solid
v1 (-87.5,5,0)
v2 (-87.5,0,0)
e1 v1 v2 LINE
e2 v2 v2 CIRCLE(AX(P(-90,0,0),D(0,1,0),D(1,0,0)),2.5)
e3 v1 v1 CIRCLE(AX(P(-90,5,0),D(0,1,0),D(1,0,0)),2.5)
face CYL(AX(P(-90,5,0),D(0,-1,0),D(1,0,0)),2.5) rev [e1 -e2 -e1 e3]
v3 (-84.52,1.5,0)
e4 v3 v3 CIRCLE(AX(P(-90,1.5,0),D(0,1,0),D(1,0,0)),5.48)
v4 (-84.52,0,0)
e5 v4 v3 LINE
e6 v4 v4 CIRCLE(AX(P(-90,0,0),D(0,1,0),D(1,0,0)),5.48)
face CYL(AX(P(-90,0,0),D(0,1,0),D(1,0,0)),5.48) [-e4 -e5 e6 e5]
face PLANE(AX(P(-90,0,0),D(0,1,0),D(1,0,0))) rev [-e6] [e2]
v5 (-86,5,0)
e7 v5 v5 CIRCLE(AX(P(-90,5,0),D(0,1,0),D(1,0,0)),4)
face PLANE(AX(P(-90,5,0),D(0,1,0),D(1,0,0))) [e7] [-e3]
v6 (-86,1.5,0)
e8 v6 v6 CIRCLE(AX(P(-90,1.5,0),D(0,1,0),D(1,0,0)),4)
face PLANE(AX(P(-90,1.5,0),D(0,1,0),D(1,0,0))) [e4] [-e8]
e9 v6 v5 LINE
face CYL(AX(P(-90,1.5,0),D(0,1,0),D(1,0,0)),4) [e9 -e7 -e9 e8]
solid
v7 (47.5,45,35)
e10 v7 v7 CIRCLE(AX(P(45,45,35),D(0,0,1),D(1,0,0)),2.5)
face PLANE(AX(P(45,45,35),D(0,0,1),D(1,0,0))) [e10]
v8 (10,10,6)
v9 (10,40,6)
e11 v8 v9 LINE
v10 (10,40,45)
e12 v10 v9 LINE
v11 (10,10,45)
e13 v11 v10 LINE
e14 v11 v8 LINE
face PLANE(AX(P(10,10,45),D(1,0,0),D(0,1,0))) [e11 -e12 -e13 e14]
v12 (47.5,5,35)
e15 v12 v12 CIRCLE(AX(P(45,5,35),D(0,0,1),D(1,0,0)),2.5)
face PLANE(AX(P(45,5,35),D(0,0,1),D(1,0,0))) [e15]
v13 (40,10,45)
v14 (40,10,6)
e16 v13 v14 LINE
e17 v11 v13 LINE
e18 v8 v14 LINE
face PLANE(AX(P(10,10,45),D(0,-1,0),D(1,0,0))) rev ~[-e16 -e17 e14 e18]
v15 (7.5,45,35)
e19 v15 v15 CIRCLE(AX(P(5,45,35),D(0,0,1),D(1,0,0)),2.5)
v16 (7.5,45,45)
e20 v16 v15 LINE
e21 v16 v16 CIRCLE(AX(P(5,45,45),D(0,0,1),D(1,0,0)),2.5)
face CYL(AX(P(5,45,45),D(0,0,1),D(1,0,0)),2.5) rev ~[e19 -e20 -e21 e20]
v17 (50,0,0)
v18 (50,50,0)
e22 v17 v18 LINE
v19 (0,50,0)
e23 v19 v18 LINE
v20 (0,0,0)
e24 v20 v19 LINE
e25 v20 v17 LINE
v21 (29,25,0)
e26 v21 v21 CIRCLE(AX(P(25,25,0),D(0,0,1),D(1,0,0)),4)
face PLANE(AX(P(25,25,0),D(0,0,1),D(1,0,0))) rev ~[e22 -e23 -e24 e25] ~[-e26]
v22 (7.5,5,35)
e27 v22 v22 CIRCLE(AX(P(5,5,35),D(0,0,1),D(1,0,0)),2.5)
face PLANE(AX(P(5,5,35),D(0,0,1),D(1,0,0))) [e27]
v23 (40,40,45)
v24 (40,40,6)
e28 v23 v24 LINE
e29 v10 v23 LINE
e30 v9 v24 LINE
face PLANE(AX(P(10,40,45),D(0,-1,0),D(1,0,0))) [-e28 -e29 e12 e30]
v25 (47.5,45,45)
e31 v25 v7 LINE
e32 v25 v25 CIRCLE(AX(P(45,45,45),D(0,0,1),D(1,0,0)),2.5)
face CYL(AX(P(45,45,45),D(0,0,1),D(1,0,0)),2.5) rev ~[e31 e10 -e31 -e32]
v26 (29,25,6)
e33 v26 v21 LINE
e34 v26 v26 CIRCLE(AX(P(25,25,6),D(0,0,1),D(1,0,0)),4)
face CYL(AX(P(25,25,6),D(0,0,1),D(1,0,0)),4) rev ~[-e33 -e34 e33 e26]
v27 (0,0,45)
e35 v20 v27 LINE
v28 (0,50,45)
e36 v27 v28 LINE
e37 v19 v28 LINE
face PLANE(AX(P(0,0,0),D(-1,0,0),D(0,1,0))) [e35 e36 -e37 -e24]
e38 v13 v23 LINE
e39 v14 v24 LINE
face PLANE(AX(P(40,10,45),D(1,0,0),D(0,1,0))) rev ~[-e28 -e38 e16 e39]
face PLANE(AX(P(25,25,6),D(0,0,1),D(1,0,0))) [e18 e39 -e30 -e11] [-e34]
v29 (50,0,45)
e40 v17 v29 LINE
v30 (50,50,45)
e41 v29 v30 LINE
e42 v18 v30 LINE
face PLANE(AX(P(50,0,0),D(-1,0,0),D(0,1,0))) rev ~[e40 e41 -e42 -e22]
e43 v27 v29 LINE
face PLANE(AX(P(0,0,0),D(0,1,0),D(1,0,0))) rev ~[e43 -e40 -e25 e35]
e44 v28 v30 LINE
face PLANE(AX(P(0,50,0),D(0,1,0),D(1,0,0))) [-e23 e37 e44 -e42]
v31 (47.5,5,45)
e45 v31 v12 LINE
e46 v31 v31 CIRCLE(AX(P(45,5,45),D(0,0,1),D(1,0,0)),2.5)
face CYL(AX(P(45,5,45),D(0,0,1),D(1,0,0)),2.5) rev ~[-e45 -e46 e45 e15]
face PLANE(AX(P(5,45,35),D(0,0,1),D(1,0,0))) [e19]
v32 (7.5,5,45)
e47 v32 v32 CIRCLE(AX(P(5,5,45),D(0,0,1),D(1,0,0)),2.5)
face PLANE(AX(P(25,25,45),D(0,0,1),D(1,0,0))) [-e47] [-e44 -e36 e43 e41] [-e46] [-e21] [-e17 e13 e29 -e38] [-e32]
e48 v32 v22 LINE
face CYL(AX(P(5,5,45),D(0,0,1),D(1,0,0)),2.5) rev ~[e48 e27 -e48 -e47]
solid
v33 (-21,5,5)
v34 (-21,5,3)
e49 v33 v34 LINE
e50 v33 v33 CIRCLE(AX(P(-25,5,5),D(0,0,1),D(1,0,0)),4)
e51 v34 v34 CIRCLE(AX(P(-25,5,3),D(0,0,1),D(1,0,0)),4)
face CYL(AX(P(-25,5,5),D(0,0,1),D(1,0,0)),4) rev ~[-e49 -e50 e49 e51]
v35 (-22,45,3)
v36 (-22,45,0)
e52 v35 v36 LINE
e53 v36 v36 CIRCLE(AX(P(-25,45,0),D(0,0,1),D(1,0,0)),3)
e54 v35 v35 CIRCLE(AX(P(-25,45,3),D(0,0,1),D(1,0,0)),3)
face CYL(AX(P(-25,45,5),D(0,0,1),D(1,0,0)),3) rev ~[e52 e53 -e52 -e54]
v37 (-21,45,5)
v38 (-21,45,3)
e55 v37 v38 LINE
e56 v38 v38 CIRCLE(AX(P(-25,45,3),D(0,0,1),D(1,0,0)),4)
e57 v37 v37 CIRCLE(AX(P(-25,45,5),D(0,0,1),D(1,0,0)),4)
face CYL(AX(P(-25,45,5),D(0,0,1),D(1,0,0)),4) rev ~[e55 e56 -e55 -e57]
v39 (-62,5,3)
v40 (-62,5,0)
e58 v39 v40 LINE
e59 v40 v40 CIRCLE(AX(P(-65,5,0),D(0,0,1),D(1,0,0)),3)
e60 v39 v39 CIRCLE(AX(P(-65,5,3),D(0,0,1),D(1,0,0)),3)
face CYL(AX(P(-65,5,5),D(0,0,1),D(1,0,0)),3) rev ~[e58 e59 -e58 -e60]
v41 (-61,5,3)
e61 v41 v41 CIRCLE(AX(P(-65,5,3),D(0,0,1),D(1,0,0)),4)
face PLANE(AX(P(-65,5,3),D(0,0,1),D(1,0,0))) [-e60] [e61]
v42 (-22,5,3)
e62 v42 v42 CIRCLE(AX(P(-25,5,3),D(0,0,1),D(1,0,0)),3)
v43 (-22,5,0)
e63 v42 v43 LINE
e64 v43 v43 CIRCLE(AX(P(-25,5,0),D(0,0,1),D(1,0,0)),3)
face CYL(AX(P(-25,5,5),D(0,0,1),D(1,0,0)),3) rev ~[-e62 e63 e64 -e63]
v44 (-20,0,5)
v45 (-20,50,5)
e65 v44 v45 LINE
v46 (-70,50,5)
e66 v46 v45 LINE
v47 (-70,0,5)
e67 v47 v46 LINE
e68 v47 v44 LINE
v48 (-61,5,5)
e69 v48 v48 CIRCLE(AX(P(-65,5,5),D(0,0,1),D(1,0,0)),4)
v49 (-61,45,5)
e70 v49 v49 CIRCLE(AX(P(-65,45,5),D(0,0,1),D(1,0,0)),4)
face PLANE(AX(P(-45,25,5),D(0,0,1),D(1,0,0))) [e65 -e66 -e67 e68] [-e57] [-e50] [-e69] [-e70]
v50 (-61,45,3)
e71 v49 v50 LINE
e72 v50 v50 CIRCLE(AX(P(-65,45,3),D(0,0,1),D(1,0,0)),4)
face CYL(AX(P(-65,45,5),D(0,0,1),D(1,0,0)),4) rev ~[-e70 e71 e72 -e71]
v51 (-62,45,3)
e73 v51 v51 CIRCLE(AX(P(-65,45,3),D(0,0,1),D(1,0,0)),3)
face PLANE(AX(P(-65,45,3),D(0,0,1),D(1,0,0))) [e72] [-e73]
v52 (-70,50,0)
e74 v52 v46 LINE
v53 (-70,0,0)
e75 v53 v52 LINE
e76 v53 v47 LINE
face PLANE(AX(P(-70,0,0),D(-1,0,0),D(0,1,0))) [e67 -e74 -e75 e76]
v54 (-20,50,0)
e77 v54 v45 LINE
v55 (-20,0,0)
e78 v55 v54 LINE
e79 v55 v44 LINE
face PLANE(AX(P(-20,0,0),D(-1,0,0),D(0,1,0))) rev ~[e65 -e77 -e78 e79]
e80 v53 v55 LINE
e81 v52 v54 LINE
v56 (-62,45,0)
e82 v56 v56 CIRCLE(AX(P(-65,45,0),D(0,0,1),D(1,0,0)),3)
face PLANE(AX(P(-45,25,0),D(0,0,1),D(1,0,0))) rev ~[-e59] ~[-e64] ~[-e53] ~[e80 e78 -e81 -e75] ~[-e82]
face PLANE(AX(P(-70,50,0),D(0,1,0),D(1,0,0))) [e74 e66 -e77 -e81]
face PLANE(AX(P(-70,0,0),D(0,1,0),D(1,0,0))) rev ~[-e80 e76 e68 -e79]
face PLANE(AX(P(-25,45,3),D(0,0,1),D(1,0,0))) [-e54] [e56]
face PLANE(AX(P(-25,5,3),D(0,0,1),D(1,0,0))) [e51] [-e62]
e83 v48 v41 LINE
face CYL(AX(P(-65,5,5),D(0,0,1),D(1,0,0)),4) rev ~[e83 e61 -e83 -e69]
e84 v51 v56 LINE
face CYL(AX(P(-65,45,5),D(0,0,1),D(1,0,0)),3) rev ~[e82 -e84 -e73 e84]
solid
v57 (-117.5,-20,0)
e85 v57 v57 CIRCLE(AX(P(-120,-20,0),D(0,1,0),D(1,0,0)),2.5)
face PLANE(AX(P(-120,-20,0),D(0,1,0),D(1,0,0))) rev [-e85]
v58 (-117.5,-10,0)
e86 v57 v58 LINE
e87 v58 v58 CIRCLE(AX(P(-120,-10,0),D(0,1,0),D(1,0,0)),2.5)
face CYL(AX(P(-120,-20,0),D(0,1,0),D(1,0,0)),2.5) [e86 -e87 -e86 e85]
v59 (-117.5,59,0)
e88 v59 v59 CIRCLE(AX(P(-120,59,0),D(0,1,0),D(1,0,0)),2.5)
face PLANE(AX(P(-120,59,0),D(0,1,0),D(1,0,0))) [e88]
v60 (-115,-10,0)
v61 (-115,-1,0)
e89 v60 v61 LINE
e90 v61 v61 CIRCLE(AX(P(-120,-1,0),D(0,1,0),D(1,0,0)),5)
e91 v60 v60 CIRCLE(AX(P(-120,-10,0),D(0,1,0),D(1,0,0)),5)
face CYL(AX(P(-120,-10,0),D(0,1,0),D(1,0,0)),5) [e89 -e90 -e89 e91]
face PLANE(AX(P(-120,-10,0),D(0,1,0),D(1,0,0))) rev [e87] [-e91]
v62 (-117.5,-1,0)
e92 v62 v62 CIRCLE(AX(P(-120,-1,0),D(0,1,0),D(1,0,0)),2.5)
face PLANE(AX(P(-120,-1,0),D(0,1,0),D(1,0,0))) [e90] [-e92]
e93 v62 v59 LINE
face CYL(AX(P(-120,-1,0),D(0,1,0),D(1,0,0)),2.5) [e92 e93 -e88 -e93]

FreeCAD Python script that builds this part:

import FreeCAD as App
import Part
import Sketcher

V = App.Vector

doc = App.newDocument("Part")
body = doc.addObject("PartDesign::Body", "Body")

sketch1 = body.newObject("Sketcher::SketchObject", "Sketch")
sketch1.AttachmentSupport = (doc.getObject("XY_Plane"), [""])
sketch1.MapMode = "FlatFace"
sketch1.addGeometry([
    Part.LineSegment(V(0, 50, 0), V(0, 0, 0)),
    Part.LineSegment(V(0, 0, 0), V(50, 0, 0)),
    Part.LineSegment(V(50, 0, 0), V(50, 50, 0)),
    Part.LineSegment(V(50, 50, 0), V(0, 50, 0)),
], False)
sketch1.addConstraint([
    Sketcher.Constraint("Coincident", 0, 2, 1, 1),
    Sketcher.Constraint("Coincident", 1, 2, 2, 1),
    Sketcher.Constraint("Coincident", 2, 2, 3, 1),
    Sketcher.Constraint("Coincident", 3, 2, 0, 1),
    Sketcher.Constraint("Vertical", 0),
    Sketcher.Constraint("Horizontal", 1),
    Sketcher.Constraint("Vertical", 2),
    Sketcher.Constraint("Horizontal", 3),
    Sketcher.Constraint("Coincident", 0, 2, -1, 1),
    Sketcher.Constraint("Equal", 3, 0),
    Sketcher.Constraint("DistanceX", 1, 1, 1, 2, 50.0),
])
pad1 = body.newObject("PartDesign::Pad", "Pad")
pad1.Profile = sketch1
pad1.Length = 45

sketch2 = body.newObject("Sketcher::SketchObject", "Sketch001")
sketch2.AttachmentSupport = (doc.getObject("XY_Plane"), [""])
sketch2.MapMode = "FlatFace"
sketch2.AttachmentOffset = App.Placement(V(0, 0, 45), App.Rotation())
sketch2.addGeometry([
    Part.LineSegment(V(10, 40, 0), V(10, 10, 0)),
    Part.LineSegment(V(10, 10, 0), V(40, 10, 0)),
    Part.LineSegment(V(40, 10, 0), V(40, 40, 0)),
    Part.LineSegment(V(40, 40, 0), V(10, 40, 0)),
], False)
sketch2.addConstraint([
    Sketcher.Constraint("Coincident", 0, 2, 1, 1),
    Sketcher.Constraint("Coincident", 1, 2, 2, 1),
    Sketcher.Constraint("Coincident", 2, 2, 3, 1),
    Sketcher.Constraint("Coincident", 3, 2, 0, 1),
    Sketcher.Constraint("Vertical", 0),
    Sketcher.Constraint("Horizontal", 1),
    Sketcher.Constraint("Vertical", 2),
    Sketcher.Constraint("Horizontal", 3),
    Sketcher.Constraint("Equal", 3, 0),
    Sketcher.Constraint("DistanceX", 1, 1, 1, 2, 30.0),
    Sketcher.Constraint("DistanceX", -1, 1, 0, 2, 10.0),
    Sketcher.Constraint("DistanceY", -1, 1, 0, 2, 10.0),
])
pocket1 = body.newObject("PartDesign::Pocket", "Pocket")
pocket1.Profile = sketch2
pocket1.Length = 39

sketch3 = body.newObject("Sketcher::SketchObject", "Sketch002")
sketch3.AttachmentSupport = (doc.getObject("XY_Plane"), [""])
sketch3.MapMode = "FlatFace"
sketch3.AttachmentOffset = App.Placement(V(0, 0, 45), App.Rotation())
sketch3.addGeometry([
    Part.Circle(V(5, 45, 0), V(0, 0, 1), 2.5),
    Part.Circle(V(5, 5, 0), V(0, 0, 1), 2.5),
    Part.Circle(V(45, 45, 0), V(0, 0, 1), 2.5),
    Part.Circle(V(45, 5, 0), V(0, 0, 1), 2.5),
], False)
sketch3.addConstraint([
    Sketcher.Constraint("Equal", 0, 1),
    Sketcher.Constraint("Equal", 1, 2),
    Sketcher.Constraint("Equal", 2, 3),
    Sketcher.Constraint("Horizontal", 0, 3, 2, 3),
    Sketcher.Constraint("Horizontal", 1, 3, 3, 3),
    Sketcher.Constraint("Vertical", 0, 3, 1, 3),
    Sketcher.Constraint("Vertical", 2, 3, 3, 3),
    Sketcher.Constraint("Diameter", 0, 5.0),
    Sketcher.Constraint("DistanceX", -1, 1, 0, 3, 5.0),
    Sketcher.Constraint("DistanceY", -1, 1, 0, 3, 45.0),
    Sketcher.Constraint("DistanceY", -1, 1, 1, 3, 5.0),
    Sketcher.Constraint("DistanceX", -1, 1, 2, 3, 45.0),
])
pocket2 = body.newObject("PartDesign::Pocket", "Pocket001")
pocket2.Profile = sketch3
pocket2.Length = 10

sketch4 = body.newObject("Sketcher::SketchObject", "Sketch003")
sketch4.AttachmentSupport = (doc.getObject("XY_Plane"), [""])
sketch4.MapMode = "FlatFace"
sketch4.AttachmentOffset = App.Placement(V(0, 0, 6), App.Rotation())
sketch4.addGeometry(Part.Circle(V(25, 25, 0), V(0, 0, 1), 4), False)
sketch4.addConstraint([
    Sketcher.Constraint("Diameter", 0, 8.0),
    Sketcher.Constraint("DistanceX", -1, 1, 0, 3, 25.0),
    Sketcher.Constraint("DistanceY", -1, 1, 0, 3, 25.0),
])
pocket3 = body.newObject("PartDesign::Pocket", "Pocket002")
pocket3.Profile = sketch4
pocket3.Length = 25
body2 = doc.addObject("PartDesign::Body", "Body001")

sketch5 = body2.newObject("Sketcher::SketchObject", "Sketch004")
sketch5.AttachmentSupport = (doc.getObject("XY_Plane001"), [""])
sketch5.MapMode = "FlatFace"
sketch5.addGeometry([
    Part.LineSegment(V(-70, 50, 0), V(-70, 0, 0)),
    Part.LineSegment(V(-70, 0, 0), V(-20, 0, 0)),
    Part.LineSegment(V(-20, 0, 0), V(-20, 50, 0)),
    Part.LineSegment(V(-20, 50, 0), V(-70, 50, 0)),
], False)
sketch5.addConstraint([
    Sketcher.Constraint("Coincident", 0, 2, 1, 1),
    Sketcher.Constraint("Coincident", 1, 2, 2, 1),
    Sketcher.Constraint("Coincident", 2, 2, 3, 1),
    Sketcher.Constraint("Coincident", 3, 2, 0, 1),
    Sketcher.Constraint("Vertical", 0),
    Sketcher.Constraint("Horizontal", 1),
    Sketcher.Constraint("Vertical", 2),
    Sketcher.Constraint("Horizontal", 3),
    Sketcher.Constraint("PointOnObject", 0, 2, -1),
    Sketcher.Constraint("Equal", 3, 0),
    Sketcher.Constraint("DistanceX", 1, 1, 1, 2, 50.0),
    Sketcher.Constraint("DistanceX", 0, 2, -1, 1, 70.0),
])
pad2 = body2.newObject("PartDesign::Pad", "Pad001")
pad2.Profile = sketch5
pad2.Length = 5

sketch6 = body2.newObject("Sketcher::SketchObject", "Sketch005")
sketch6.AttachmentSupport = (doc.getObject("XY_Plane001"), [""])
sketch6.MapMode = "FlatFace"
sketch6.AttachmentOffset = App.Placement(V(0, 0, 5), App.Rotation())
sketch6.addGeometry([
    Part.Circle(V(-65, 45, 0), V(0, 0, 1), 3),
    Part.Circle(V(-25, 45, 0), V(0, 0, 1), 3),
    Part.Circle(V(-25, 5, 0), V(0, 0, 1), 3),
    Part.Circle(V(-65, 5, 0), V(0, 0, 1), 3),
], False)
sketch6.addConstraint([
    Sketcher.Constraint("Equal", 0, 1),
    Sketcher.Constraint("Equal", 1, 2),
    Sketcher.Constraint("Equal", 2, 3),
    Sketcher.Constraint("Horizontal", 0, 3, 1, 3),
    Sketcher.Constraint("Horizontal", 2, 3, 3, 3),
    Sketcher.Constraint("Vertical", 1, 3, 2, 3),
    Sketcher.Constraint("Vertical", 0, 3, 3, 3),
    Sketcher.Constraint("Diameter", 0, 6.0),
    Sketcher.Constraint("DistanceX", 0, 3, -1, 1, 65.0),
    Sketcher.Constraint("DistanceY", -1, 1, 0, 3, 45.0),
    Sketcher.Constraint("DistanceX", 1, 3, -1, 1, 25.0),
    Sketcher.Constraint("DistanceY", -1, 1, 2, 3, 5.0),
])
pocket4 = body2.newObject("PartDesign::Pocket", "Pocket003")
pocket4.Profile = sketch6
pocket4.Length = 25

sketch7 = body2.newObject("Sketcher::SketchObject", "Sketch006")
sketch7.AttachmentSupport = (doc.getObject("XY_Plane001"), [""])
sketch7.MapMode = "FlatFace"
sketch7.AttachmentOffset = App.Placement(V(0, 0, 5), App.Rotation())
sketch7.addGeometry([
    Part.Circle(V(-65, 45, 0), V(0, 0, 1), 4),
    Part.Circle(V(-65, 5, 0), V(0, 0, 1), 4),
    Part.Circle(V(-25, 5, 0), V(0, 0, 1), 4),
    Part.Circle(V(-25, 45, 0), V(0, 0, 1), 4),
], False)
sketch7.addConstraint([
    Sketcher.Constraint("Equal", 0, 1),
    Sketcher.Constraint("Equal", 1, 2),
    Sketcher.Constraint("Equal", 2, 3),
    Sketcher.Constraint("Horizontal", 1, 3, 2, 3),
    Sketcher.Constraint("Horizontal", 0, 3, 3, 3),
    Sketcher.Constraint("Vertical", 0, 3, 1, 3),
    Sketcher.Constraint("Vertical", 2, 3, 3, 3),
    Sketcher.Constraint("Diameter", 0, 8.0),
    Sketcher.Constraint("DistanceX", 0, 3, -1, 1, 65.0),
    Sketcher.Constraint("DistanceY", -1, 1, 0, 3, 45.0),
    Sketcher.Constraint("DistanceY", -1, 1, 1, 3, 5.0),
    Sketcher.Constraint("DistanceX", 2, 3, -1, 1, 25.0),
])
pocket5 = body2.newObject("PartDesign::Pocket", "Pocket004")
pocket5.Profile = sketch7
pocket5.Length = 2
body3 = doc.addObject("PartDesign::Body", "Body002")

sketch8 = body3.newObject("Sketcher::SketchObject", "Sketch007")
sketch8.AttachmentSupport = (doc.getObject("XY_Plane002"), [""])
sketch8.MapMode = "FlatFace"
sketch8.addGeometry([
    Part.LineSegment(V(-87.5, 5, 0), V(-87.5, 0, 0)),
    Part.LineSegment(V(-87.5, 0, 0), V(-84.52, 0, 0)),
    Part.LineSegment(V(-84.52, 0, 0), V(-84.52, 1.5, 0)),
    Part.LineSegment(V(-84.52, 1.5, 0), V(-86, 1.5, 0)),
    Part.LineSegment(V(-86, 1.5, 0), V(-86, 5, 0)),
    Part.LineSegment(V(-86, 5, 0), V(-87.5, 5, 0)),
], False)
sketch8.addGeometry(Part.LineSegment(V(-90, 0, 0), V(-90, 5, 0)), True)
sketch8.addConstraint([
    Sketcher.Constraint("Coincident", 0, 2, 1, 1),
    Sketcher.Constraint("Coincident", 1, 2, 2, 1),
    Sketcher.Constraint("Coincident", 2, 2, 3, 1),
    Sketcher.Constraint("Coincident", 3, 2, 4, 1),
    Sketcher.Constraint("Coincident", 4, 2, 5, 1),
    Sketcher.Constraint("Coincident", 5, 2, 0, 1),
    Sketcher.Constraint("Vertical", 0),
    Sketcher.Constraint("Horizontal", 1),
    Sketcher.Constraint("Vertical", 2),
    Sketcher.Constraint("Horizontal", 3),
    Sketcher.Constraint("Vertical", 4),
    Sketcher.Constraint("Horizontal", 5),
    Sketcher.Constraint("Vertical", 6),
    Sketcher.Constraint("PointOnObject", 0, 2, -1),
    Sketcher.Constraint("PointOnObject", 6, 1, -1),
    Sketcher.Constraint("Horizontal", 5, 2, 6, 2),
    Sketcher.Constraint("Equal", 5, 2),
    Sketcher.Constraint("DistanceY", 0, 2, 0, 1, 5.0),
    Sketcher.Constraint("DistanceX", 5, 2, 5, 1, 1.5),
    Sketcher.Constraint("DistanceX", 3, 2, -1, 1, 86.0),
    Sketcher.Constraint("DistanceX", 6, 1, -1, 1, 90.0),
    Sketcher.Constraint("DistanceX", 1, 1, 1, 2, 2.98),
])
revolution = body3.newObject("PartDesign::Revolution", "Revolution")
revolution.Profile = sketch8
revolution.ReferenceAxis = (sketch8, ["Axis0"])
revolution.Angle = 360
body4 = doc.addObject("PartDesign::Body", "Body003")

sketch9 = body4.newObject("Sketcher::SketchObject", "Sketch008")
sketch9.AttachmentSupport = (doc.getObject("XY_Plane003"), [""])
sketch9.MapMode = "FlatFace"
sketch9.addGeometry([
    Part.LineSegment(V(-120, 59, 0), V(-120, -20, 0)),
    Part.LineSegment(V(-120, -20, 0), V(-117.5, -20, 0)),
    Part.LineSegment(V(-117.5, -20, 0), V(-117.5, -10, 0)),
    Part.LineSegment(V(-117.5, -10, 0), V(-115, -10, 0)),
    Part.LineSegment(V(-115, -10, 0), V(-115, -1, 0)),
    Part.LineSegment(V(-115, -1, 0), V(-117.5, -1, 0)),
    Part.LineSegment(V(-117.5, -1, 0), V(-117.5, 59, 0)),
    Part.LineSegment(V(-117.5, 59, 0), V(-120, 59, 0)),
], False)
sketch9.addGeometry(Part.LineSegment(V(-120, -20, 0), V(-120, 59, 0)), True)
sketch9.addConstraint([
    Sketcher.Constraint("Coincident", 0, 2, 1, 1),
    Sketcher.Constraint("Coincident", 1, 2, 2, 1),
    Sketcher.Constraint("Coincident", 2, 2, 3, 1),
    Sketcher.Constraint("Coincident", 3, 2, 4, 1),
    Sketcher.Constraint("Coincident", 4, 2, 5, 1),
    Sketcher.Constraint("Coincident", 5, 2, 6, 1),
    Sketcher.Constraint("Coincident", 6, 2, 7, 1),
    Sketcher.Constraint("Coincident", 7, 2, 0, 1),
    Sketcher.Constraint("Vertical", 0),
    Sketcher.Constraint("Horizontal", 1),
    Sketcher.Constraint("Vertical", 2),
    Sketcher.Constraint("Horizontal", 3),
    Sketcher.Constraint("Vertical", 4),
    Sketcher.Constraint("Horizontal", 5),
    Sketcher.Constraint("Vertical", 6),
    Sketcher.Constraint("Horizontal", 7),
    Sketcher.Constraint("Vertical", 8),
    Sketcher.Constraint("Coincident", 8, 1, 0, 2),
    Sketcher.Constraint("Horizontal", 6, 2, 8, 2),
    Sketcher.Constraint("Vertical", 2, 2, 5, 2),
    Sketcher.Constraint("Equal", 1, 3),
    Sketcher.Constraint("DistanceY", 0, 2, 0, 1, 79.0),
    Sketcher.Constraint("DistanceY", 2, 1, 2, 2, 10.0),
    Sketcher.Constraint("DistanceY", 4, 1, 4, 2, 9.0),
    Sketcher.Constraint("DistanceX", 1, 1, 1, 2, 2.5),
    Sketcher.Constraint("DistanceX", 0, 2, -1, 1, 120.0),
    Sketcher.Constraint("DistanceY", 0, 2, -1, 1, 20.0),
])
revolution2 = body4.newObject("PartDesign::Revolution", "Revolution001")
revolution2.Profile = sketch9
revolution2.ReferenceAxis = (sketch9, ["Axis0"])
revolution2.Angle = 360

doc.recompute()
